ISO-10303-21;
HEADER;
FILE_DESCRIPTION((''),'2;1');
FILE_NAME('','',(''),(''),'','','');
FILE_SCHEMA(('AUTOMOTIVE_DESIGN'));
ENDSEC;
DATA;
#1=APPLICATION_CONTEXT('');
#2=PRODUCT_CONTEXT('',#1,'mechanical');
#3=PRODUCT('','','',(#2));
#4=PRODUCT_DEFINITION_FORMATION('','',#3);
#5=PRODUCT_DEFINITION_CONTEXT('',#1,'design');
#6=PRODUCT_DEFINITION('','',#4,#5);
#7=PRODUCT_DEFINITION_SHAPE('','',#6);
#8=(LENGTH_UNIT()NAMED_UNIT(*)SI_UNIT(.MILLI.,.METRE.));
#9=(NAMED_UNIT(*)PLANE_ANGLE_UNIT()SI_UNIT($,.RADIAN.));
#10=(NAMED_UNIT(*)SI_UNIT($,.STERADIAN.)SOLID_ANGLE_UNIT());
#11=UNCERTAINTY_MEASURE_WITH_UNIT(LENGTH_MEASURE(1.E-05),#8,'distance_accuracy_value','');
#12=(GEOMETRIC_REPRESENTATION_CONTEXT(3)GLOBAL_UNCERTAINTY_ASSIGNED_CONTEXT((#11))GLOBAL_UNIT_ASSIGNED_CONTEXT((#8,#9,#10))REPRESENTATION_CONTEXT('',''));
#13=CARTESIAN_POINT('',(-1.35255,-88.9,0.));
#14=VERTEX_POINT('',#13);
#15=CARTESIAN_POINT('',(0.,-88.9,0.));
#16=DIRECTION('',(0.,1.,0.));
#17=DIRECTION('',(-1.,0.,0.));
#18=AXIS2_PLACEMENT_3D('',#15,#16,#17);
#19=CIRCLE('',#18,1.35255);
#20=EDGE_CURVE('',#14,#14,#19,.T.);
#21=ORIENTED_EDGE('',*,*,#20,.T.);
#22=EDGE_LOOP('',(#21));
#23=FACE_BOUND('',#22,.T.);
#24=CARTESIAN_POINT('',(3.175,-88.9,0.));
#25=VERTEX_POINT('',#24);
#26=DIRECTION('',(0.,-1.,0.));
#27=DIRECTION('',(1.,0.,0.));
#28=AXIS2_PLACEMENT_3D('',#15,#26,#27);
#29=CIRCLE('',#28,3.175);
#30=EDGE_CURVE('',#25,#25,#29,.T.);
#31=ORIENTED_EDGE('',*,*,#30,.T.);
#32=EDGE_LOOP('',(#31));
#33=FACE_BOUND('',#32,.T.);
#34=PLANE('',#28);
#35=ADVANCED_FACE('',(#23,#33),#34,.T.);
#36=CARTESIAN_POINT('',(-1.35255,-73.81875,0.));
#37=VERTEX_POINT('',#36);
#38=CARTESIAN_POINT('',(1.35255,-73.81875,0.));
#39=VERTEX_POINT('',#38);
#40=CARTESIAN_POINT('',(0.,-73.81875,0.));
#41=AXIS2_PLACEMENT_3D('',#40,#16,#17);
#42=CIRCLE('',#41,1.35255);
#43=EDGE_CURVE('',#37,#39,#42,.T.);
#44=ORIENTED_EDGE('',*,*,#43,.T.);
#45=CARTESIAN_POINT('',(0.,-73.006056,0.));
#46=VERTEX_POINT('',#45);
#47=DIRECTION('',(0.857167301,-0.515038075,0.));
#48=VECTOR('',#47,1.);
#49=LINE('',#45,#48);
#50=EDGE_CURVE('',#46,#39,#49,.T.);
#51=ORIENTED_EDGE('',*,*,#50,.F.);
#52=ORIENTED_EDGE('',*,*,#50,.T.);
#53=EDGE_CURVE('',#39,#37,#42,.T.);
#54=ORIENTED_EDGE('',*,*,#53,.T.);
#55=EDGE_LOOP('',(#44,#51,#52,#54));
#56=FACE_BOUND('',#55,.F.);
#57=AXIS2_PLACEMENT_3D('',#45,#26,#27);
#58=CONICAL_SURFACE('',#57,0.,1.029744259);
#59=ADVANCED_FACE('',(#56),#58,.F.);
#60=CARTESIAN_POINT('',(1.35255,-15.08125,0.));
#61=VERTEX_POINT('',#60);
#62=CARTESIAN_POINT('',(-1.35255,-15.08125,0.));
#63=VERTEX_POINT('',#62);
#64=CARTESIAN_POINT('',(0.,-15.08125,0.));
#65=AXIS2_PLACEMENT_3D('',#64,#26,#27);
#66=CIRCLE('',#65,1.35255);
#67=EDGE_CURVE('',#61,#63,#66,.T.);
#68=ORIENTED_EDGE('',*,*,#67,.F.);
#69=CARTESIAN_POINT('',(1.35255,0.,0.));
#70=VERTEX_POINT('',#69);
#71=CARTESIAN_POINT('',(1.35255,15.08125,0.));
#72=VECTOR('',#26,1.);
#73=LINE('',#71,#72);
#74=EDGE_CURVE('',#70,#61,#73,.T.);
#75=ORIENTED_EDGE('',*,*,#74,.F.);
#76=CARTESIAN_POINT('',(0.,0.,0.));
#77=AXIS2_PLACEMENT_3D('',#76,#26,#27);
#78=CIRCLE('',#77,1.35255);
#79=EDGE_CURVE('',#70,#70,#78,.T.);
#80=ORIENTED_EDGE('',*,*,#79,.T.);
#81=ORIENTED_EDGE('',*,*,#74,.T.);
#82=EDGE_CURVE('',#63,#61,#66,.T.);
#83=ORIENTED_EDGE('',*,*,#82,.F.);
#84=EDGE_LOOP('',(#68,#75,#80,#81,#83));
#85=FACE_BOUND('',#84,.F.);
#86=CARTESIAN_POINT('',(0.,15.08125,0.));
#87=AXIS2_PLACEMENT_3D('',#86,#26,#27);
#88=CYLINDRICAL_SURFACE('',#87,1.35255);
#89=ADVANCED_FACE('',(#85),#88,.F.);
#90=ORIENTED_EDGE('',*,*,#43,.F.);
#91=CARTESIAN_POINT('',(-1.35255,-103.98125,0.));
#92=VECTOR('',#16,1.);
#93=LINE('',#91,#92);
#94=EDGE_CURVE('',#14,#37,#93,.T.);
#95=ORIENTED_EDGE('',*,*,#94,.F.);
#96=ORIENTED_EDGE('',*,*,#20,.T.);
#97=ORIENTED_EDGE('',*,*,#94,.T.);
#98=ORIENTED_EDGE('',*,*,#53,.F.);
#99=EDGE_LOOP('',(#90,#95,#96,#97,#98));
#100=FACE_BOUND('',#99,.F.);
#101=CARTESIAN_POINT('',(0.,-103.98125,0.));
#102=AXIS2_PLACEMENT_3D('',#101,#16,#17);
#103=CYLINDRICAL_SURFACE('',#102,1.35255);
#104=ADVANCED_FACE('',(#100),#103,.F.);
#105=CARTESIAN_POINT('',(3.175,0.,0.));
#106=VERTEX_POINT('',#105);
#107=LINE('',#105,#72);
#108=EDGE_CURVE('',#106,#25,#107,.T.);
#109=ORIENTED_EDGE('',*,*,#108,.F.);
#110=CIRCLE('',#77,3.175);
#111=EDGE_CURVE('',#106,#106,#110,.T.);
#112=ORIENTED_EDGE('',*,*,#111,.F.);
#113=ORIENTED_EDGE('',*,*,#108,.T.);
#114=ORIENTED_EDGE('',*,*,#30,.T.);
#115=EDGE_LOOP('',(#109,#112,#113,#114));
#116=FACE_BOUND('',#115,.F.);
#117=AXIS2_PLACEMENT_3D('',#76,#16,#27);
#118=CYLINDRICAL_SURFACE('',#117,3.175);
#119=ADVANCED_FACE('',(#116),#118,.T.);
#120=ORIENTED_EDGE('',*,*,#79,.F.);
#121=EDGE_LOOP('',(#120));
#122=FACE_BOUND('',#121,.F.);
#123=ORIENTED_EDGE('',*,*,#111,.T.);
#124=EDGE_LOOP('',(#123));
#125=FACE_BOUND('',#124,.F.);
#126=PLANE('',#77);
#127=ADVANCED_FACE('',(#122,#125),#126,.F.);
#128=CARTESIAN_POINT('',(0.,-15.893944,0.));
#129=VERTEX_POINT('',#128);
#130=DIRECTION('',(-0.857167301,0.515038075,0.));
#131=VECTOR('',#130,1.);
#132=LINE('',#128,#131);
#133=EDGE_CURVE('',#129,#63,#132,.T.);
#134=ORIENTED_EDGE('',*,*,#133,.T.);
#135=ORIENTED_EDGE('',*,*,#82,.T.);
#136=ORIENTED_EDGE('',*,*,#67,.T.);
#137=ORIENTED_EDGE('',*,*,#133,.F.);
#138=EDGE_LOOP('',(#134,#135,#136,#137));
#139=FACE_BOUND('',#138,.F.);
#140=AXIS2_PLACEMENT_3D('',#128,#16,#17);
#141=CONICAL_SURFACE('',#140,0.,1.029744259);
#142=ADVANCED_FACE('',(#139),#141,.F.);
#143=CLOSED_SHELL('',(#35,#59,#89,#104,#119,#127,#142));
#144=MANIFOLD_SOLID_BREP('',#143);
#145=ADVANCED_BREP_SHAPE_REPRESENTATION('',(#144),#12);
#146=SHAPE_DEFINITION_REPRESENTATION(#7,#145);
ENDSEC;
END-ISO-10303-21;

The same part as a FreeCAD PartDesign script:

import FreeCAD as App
import Part
import Sketcher
from FreeCAD import Vector
Q = App.Units.Quantity

doc = App.newDocument("Part")
body = doc.addObject("PartDesign::Body", "Body")

# Sketch on XZ plane
sketch1 = doc.addObject("Sketcher::SketchObject", "Sketch")
body.addObject(sketch1)
sketch1.AttachmentSupport = (doc.XZ_Plane, [""])
sketch1.MapMode = "FlatFace"
sketch1.addGeometry(Part.Circle(Vector(0, 0, 0), Vector(0, 0, 1), 3.175), False)
sketch1.addConstraint(Sketcher.Constraint("Coincident", 0, 3, -1, 1))
sketch1.addConstraint(Sketcher.Constraint("Diameter", 0, Q("0.25 in")))
pad1 = doc.addObject("PartDesign::Pad", "Pad")
body.addObject(pad1)
pad1.Profile = sketch1
pad1.Length = Q("3.5 in")

# Sketch on XZ plane
sketch2 = doc.addObject("Sketcher::SketchObject", "Sketch001")
body.addObject(sketch2)
sketch2.AttachmentSupport = (doc.XZ_Plane, [""])
sketch2.MapMode = "FlatFace"
sketch2.addGeometry(Part.Circle(Vector(0, 0, 0), Vector(0, 0, 1), 1.35255), False)
sketch2.addConstraint(Sketcher.Constraint("Coincident", 0, 3, -1, 1))
sketch2.addConstraint(Sketcher.Constraint("Diameter", 0, Q("0.1065 in")))
doc.recompute()
hole = doc.addObject("PartDesign::Hole", "Hole")
body.addObject(hole)
hole.Profile = sketch2
hole.ThreadType = "None"
hole.Diameter = Q("0.1065 in")
hole.DepthType = "Dimension"
hole.Depth = Q("0.59375 in")
hole.DrillPoint = "Angled"
hole.DrillPointAngle = 118
hole.Reversed = True

# Sketch on XZ plane
sketch3 = doc.addObject("Sketcher::SketchObject", "Sketch002")
body.addObject(sketch3)
sketch3.AttachmentSupport = (doc.XZ_Plane, [""])
sketch3.MapMode = "FlatFace"
sketch3.AttachmentOffset = App.Placement(Vector(0, 0, 3.5 * 25.4), App.Rotation())
sketch3.addGeometry(Part.Circle(Vector(0, 0, 0), Vector(0, 0, 1), 1.35255), False)
sketch3.addConstraint(Sketcher.Constraint("Coincident", 0, 3, -1, 1))
sketch3.addConstraint(Sketcher.Constraint("Diameter", 0, Q("0.1065 in")))
doc.recompute()
hole2 = doc.addObject("PartDesign::Hole", "Hole001")
body.addObject(hole2)
hole2.Profile = sketch3
hole2.ThreadType = "None"
hole2.Diameter = Q("0.1065 in")
hole2.DepthType = "Dimension"
hole2.Depth = Q("0.59375 in")
hole2.DrillPoint = "Angled"
hole2.DrillPointAngle = 118

doc.recompute()
